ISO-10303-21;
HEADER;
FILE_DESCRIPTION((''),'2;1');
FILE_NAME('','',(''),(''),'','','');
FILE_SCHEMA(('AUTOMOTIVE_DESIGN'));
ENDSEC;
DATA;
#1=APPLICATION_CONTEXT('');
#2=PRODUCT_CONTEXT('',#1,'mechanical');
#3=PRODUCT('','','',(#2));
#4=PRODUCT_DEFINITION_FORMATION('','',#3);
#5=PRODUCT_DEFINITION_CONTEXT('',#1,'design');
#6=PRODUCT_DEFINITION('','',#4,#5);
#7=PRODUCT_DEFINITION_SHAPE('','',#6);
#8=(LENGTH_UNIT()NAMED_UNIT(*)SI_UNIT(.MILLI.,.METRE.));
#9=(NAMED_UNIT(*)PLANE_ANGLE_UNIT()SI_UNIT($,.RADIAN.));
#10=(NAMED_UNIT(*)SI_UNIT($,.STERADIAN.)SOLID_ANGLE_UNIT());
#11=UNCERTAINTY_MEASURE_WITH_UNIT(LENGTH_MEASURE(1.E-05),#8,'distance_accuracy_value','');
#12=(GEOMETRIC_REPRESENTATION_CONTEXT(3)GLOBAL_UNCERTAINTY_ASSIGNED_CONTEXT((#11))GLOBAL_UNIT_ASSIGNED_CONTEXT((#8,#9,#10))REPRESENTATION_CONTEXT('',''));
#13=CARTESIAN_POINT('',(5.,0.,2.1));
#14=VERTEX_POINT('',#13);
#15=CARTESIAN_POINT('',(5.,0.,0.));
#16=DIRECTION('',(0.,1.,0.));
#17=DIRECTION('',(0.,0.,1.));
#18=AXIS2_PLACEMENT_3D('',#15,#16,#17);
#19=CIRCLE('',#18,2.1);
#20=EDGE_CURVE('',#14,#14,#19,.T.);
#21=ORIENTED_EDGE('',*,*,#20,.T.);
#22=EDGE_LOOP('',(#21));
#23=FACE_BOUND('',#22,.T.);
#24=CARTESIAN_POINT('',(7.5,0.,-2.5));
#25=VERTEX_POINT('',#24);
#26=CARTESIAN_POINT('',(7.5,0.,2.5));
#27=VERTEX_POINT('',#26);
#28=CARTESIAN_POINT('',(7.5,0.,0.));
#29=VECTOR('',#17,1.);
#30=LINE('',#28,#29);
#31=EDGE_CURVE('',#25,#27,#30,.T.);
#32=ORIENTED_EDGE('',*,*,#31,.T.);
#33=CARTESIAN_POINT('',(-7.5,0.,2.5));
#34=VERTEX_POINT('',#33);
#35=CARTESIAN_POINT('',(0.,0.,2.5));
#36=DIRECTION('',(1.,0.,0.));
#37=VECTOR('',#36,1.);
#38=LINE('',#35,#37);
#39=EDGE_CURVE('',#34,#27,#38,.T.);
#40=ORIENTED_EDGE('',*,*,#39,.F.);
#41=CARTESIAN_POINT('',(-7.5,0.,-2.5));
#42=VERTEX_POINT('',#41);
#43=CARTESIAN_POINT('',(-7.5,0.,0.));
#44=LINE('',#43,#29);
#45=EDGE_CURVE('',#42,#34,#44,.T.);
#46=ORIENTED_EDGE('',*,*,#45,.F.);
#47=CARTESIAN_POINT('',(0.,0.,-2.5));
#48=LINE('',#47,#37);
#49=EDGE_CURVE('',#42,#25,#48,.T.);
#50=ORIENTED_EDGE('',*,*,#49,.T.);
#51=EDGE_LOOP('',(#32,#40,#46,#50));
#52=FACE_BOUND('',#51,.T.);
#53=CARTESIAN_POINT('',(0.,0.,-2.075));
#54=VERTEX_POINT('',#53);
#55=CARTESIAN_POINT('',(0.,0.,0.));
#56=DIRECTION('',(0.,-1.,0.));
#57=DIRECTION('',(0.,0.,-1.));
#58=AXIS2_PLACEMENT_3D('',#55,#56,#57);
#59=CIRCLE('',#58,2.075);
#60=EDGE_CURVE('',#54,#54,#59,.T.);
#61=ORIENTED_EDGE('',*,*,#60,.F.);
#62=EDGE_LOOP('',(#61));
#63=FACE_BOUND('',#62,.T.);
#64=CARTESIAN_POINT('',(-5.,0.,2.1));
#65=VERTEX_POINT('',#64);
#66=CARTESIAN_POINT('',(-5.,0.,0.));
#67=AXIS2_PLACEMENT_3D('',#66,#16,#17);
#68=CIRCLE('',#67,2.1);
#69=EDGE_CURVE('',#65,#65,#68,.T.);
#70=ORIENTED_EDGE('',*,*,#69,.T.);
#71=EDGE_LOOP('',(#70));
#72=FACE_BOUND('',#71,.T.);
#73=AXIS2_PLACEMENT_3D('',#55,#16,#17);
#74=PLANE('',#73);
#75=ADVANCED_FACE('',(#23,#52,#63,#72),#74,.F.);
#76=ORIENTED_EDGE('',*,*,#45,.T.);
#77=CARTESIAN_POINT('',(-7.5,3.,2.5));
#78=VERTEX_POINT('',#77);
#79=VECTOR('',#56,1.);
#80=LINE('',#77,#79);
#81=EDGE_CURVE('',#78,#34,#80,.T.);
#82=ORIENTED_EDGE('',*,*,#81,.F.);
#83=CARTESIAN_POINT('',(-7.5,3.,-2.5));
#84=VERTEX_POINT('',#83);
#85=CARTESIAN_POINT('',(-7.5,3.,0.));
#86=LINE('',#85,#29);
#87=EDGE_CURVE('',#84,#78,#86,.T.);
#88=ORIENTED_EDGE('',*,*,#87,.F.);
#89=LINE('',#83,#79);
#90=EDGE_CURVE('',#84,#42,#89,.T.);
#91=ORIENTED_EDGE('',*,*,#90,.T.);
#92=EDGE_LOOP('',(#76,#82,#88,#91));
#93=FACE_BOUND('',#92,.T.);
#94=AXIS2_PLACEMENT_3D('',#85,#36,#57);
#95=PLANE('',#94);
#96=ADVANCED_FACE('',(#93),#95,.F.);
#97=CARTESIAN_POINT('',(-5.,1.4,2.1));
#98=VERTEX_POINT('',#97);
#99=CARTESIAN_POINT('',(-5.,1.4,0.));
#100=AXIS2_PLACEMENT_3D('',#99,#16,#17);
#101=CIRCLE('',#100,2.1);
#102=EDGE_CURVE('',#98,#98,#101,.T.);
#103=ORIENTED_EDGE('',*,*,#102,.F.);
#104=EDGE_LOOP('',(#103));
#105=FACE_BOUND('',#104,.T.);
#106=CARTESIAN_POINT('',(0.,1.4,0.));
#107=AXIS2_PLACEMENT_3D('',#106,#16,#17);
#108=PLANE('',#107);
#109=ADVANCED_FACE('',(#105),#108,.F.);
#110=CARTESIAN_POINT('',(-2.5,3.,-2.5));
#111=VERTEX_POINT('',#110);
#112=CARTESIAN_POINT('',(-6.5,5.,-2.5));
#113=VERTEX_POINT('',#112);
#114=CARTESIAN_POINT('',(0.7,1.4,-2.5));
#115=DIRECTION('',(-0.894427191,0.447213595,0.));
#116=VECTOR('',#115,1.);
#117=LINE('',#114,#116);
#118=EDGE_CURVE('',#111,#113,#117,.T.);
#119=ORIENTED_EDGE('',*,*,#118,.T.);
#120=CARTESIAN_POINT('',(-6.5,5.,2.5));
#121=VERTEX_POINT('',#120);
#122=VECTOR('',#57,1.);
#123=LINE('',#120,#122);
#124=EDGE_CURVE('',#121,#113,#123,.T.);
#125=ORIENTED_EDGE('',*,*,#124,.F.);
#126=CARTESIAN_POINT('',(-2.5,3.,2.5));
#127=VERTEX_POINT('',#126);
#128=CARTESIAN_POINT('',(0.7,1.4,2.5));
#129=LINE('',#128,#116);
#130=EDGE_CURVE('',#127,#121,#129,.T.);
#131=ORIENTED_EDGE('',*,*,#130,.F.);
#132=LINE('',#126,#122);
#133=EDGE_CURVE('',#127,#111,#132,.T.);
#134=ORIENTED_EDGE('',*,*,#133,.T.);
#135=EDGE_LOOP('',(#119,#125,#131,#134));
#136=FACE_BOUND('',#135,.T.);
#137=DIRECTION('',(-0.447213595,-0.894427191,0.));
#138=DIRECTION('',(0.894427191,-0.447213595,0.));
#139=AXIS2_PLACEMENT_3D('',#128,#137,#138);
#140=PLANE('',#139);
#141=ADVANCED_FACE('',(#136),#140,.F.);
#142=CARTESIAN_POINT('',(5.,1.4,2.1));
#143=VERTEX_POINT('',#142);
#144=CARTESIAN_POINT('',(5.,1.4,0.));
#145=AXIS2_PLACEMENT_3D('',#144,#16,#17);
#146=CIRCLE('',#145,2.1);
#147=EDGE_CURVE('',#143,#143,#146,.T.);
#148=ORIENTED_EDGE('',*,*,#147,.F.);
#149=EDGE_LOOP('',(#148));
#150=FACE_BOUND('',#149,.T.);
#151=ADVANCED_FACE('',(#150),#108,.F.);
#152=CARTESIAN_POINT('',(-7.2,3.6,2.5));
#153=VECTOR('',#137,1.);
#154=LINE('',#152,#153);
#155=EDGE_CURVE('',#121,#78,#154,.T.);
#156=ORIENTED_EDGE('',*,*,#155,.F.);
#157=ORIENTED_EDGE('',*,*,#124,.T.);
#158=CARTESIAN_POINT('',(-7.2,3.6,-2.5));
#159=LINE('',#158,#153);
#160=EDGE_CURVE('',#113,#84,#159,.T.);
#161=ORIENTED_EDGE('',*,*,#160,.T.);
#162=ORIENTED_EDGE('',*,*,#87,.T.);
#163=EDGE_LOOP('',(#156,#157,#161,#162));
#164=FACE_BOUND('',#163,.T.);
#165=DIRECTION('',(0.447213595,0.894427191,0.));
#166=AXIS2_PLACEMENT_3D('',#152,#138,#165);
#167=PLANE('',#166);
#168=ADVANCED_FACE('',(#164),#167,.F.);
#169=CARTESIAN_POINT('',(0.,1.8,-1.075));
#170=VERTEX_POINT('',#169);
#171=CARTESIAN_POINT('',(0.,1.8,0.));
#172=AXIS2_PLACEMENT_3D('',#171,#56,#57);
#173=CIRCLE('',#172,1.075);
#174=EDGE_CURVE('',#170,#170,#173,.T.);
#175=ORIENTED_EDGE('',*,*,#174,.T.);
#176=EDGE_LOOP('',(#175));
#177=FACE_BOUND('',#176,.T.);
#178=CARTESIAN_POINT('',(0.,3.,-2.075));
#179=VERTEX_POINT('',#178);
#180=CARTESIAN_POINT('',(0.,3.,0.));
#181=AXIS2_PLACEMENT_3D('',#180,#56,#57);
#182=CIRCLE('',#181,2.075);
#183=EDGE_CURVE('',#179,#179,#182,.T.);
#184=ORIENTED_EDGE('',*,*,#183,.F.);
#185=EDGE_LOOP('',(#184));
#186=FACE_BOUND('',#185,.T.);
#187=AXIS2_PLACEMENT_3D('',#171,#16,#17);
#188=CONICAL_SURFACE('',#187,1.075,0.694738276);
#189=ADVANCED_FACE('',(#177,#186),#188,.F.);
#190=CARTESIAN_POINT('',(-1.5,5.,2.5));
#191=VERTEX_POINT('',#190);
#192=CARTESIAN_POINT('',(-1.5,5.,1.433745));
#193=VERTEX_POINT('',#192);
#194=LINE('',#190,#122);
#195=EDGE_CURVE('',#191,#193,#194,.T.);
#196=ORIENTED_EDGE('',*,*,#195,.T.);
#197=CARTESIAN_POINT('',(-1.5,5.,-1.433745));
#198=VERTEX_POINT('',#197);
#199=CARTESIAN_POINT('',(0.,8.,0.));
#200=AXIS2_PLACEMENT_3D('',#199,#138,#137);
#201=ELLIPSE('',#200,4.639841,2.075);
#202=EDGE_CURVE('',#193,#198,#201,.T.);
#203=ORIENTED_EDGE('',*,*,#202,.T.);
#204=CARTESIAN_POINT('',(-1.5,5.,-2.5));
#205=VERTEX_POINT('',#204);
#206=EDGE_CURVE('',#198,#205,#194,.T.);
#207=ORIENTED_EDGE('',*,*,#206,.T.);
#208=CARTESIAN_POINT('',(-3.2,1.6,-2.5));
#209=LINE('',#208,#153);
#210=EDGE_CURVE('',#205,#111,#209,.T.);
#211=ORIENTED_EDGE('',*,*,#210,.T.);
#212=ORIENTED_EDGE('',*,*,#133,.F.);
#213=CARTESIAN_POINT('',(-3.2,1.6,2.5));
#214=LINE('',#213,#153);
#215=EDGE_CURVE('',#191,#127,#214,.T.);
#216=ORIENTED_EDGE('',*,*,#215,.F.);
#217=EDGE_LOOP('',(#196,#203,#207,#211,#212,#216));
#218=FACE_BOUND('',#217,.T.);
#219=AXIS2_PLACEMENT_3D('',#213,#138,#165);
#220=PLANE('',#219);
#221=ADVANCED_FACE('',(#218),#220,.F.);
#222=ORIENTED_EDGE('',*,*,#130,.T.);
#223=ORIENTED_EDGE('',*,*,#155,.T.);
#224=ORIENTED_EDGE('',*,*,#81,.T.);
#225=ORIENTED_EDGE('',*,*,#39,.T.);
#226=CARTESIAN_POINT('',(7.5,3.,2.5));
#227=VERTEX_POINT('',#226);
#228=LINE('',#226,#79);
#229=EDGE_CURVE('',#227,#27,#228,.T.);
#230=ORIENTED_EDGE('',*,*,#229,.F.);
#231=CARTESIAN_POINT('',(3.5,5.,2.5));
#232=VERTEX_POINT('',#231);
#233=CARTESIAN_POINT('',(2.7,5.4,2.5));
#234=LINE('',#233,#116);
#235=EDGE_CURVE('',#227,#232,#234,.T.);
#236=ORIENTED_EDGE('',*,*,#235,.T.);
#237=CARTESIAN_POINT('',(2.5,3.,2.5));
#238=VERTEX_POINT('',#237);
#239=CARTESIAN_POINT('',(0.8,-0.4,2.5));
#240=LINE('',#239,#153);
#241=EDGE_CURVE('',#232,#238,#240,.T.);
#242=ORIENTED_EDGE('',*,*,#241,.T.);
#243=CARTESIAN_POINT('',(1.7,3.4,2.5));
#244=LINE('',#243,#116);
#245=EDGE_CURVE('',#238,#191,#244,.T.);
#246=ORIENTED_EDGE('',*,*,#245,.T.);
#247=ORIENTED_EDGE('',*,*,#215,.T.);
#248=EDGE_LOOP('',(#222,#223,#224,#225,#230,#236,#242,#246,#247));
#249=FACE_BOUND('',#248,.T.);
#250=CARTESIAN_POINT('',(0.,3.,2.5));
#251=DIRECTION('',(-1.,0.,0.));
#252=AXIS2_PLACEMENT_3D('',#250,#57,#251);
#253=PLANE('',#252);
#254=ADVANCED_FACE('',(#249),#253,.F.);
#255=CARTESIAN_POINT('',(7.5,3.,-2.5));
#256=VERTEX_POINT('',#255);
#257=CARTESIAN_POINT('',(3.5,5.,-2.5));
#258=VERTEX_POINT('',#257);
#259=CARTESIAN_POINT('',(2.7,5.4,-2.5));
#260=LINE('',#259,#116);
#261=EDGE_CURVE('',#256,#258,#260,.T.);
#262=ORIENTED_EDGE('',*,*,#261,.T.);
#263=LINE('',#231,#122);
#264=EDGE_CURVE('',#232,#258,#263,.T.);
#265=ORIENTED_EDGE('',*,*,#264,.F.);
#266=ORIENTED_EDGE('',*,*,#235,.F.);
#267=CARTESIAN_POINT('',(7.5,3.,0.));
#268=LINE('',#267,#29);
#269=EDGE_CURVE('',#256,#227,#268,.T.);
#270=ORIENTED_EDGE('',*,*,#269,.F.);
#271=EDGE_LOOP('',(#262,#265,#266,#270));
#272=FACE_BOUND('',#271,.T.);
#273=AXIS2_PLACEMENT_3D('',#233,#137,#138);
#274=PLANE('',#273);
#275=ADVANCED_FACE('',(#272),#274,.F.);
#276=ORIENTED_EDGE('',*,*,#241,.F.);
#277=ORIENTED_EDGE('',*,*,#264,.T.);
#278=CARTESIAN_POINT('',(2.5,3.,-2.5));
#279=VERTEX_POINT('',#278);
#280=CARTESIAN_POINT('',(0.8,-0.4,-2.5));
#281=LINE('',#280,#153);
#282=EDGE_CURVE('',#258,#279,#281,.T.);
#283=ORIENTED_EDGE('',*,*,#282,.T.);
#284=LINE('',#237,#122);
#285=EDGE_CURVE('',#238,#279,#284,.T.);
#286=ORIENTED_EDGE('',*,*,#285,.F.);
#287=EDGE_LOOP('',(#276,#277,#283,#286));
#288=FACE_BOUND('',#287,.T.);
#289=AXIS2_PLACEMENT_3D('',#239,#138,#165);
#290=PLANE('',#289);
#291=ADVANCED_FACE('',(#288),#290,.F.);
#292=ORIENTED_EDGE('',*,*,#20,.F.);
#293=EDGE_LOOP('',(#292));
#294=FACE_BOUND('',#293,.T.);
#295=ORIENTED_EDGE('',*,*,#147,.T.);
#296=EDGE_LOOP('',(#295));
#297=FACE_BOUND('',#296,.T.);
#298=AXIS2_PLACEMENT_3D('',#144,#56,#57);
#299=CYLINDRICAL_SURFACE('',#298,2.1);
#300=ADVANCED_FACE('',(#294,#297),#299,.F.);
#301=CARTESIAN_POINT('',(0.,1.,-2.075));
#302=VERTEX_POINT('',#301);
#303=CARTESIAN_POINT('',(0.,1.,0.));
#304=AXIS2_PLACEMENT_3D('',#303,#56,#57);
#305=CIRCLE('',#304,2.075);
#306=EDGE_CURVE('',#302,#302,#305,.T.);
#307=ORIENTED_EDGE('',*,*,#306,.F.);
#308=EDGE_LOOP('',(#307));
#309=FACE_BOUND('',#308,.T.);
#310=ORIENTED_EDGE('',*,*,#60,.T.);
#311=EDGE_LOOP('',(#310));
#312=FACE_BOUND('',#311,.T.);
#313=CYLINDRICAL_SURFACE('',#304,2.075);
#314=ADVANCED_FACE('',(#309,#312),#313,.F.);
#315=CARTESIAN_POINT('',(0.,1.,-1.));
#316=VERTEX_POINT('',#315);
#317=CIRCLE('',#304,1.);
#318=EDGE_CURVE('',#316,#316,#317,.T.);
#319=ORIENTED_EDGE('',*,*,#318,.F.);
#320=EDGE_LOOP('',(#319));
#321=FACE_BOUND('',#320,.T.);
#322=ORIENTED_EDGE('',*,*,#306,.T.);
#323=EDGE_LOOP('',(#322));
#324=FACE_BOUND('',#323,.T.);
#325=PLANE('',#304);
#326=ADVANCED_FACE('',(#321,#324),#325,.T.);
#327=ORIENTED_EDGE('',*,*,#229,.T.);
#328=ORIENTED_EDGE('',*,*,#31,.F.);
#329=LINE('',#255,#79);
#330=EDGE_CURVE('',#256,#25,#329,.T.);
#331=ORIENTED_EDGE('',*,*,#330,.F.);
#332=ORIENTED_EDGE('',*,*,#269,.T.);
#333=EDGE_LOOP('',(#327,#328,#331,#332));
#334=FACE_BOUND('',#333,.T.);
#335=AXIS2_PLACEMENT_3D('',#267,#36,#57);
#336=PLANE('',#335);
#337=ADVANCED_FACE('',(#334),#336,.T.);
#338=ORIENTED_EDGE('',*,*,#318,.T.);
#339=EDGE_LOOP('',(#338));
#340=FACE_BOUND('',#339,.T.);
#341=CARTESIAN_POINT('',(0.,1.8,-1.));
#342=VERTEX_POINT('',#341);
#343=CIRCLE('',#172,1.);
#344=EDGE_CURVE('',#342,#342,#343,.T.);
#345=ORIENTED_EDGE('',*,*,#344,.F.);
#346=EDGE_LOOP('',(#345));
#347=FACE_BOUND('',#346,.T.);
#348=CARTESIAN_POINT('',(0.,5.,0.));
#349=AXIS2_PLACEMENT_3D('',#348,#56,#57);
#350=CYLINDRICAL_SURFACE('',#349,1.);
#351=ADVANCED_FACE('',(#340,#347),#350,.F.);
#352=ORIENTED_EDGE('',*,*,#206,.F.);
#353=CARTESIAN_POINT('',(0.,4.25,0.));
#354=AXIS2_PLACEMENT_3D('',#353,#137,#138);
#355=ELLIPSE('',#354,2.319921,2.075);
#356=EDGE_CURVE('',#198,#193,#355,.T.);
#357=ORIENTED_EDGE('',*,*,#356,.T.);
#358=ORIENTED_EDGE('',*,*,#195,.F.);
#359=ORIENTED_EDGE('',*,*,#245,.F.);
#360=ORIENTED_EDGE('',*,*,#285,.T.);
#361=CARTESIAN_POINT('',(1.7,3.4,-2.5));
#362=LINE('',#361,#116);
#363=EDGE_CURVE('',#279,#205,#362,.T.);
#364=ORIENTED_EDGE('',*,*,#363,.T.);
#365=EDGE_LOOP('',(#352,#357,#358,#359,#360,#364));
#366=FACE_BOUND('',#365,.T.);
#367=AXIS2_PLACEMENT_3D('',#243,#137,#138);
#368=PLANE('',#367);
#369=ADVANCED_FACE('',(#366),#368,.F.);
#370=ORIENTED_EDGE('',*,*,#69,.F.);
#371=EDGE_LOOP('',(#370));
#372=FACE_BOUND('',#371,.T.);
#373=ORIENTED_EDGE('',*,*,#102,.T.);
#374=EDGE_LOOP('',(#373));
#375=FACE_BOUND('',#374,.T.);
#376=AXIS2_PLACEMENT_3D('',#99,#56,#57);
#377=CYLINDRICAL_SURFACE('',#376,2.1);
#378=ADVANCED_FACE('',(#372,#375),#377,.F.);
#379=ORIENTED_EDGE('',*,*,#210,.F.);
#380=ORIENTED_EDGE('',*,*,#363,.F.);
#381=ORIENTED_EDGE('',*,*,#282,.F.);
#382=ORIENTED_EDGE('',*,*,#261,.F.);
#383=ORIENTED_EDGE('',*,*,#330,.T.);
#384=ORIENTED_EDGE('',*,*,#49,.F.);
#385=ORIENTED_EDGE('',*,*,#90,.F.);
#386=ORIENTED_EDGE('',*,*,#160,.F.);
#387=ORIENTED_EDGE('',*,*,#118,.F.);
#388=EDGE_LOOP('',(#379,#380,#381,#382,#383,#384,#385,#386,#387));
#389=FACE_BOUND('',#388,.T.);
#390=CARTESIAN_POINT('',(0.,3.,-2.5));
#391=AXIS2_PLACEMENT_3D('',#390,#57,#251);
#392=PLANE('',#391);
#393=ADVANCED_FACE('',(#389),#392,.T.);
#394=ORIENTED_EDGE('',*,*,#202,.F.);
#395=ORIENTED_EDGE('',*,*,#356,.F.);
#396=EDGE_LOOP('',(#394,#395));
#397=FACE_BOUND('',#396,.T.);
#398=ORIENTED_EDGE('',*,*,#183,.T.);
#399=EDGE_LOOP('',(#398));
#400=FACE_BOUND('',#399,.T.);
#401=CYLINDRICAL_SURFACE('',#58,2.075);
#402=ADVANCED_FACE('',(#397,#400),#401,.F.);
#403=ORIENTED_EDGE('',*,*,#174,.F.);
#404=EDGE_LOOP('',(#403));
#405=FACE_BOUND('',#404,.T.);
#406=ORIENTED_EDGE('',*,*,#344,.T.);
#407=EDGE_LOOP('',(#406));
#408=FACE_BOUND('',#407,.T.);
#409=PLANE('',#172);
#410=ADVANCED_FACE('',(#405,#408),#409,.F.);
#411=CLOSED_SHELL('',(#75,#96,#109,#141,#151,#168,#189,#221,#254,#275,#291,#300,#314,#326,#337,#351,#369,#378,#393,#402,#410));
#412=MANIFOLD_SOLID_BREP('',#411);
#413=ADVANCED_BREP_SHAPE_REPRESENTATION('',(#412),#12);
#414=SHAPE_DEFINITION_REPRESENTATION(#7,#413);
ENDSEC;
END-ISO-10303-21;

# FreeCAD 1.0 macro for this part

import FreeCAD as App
import Part
import Sketcher

V = App.Vector
Q = App.Units.Quantity

doc = App.newDocument("Part")
body = doc.addObject("PartDesign::Body", "Body")

# Sketch on XZ plane
sketch1 = body.newObject("Sketcher::SketchObject", "Sketch")
sketch1.AttachmentSupport = (doc.getObject("XZ_Plane"), [""])
sketch1.MapMode = "FlatFace"
sketch1.addGeometry([
    Part.LineSegment(V(-8, -2, 0), V(-8, 2, 0)),
    Part.LineSegment(V(-8, 2, 0), V(8, 2, 0)),
    Part.LineSegment(V(8, 2, 0), V(8, -2, 0)),
    Part.LineSegment(V(8, -2, 0), V(-8, -2, 0)),
], False)
sketch1.addConstraint([
    Sketcher.Constraint("Coincident", 0, 2, 1, 1),
    Sketcher.Constraint("Coincident", 1, 2, 2, 1),
    Sketcher.Constraint("Coincident", 2, 2, 3, 1),
    Sketcher.Constraint("Coincident", 3, 2, 0, 1),
    Sketcher.Constraint("Vertical", 0),
    Sketcher.Constraint("Horizontal", 1),
    Sketcher.Constraint("Vertical", 2),
    Sketcher.Constraint("Horizontal", 3),
    Sketcher.Constraint("Symmetric", 0, 2, 2, 2, -1, 1),
    Sketcher.Constraint("DistanceX", 1, 1, 1, 2, Q("15 mm")),
    Sketcher.Constraint("DistanceY", 0, 1, 0, 2, Q("5 mm")),
])
pad1 = body.newObject("PartDesign::Pad", "Pad")
pad1.Profile = sketch1
pad1.Length = 3
pad1.Reversed = True

# Sketch on XY plane
sketch2 = body.newObject("Sketcher::SketchObject", "Sketch001")
sketch2.AttachmentSupport = (doc.getObject("XY_Plane"), [""])
sketch2.MapMode = "FlatFace"
sketch2.addGeometry([
    Part.LineSegment(V(-2.5, 3, 0), V(-6.5, 5, 0)),  # 0
    Part.LineSegment(V(-6.5, 5, 0), V(-7.5, 3, 0)),  # 1
    Part.LineSegment(V(-7.5, 3, 0), V(-2.5, 3, 0)),  # 2
    Part.LineSegment(V(2.5, 3, 0), V(-1.5, 5, 0)),  # 3
    Part.LineSegment(V(-1.5, 5, 0), V(-2.5, 3, 0)),  # 4
    Part.LineSegment(V(-2.5, 3, 0), V(2.5, 3, 0)),  # 5
    Part.LineSegment(V(3.5, 5, 0), V(2.5, 3, 0)),  # 6
    Part.LineSegment(V(2.5, 3, 0), V(7.5, 3, 0)),  # 7
    Part.LineSegment(V(7.5, 3, 0), V(3.5, 5, 0)),  # 8
], False)
sketch2.addConstraint([
    Sketcher.Constraint("Coincident", 0, 2, 1, 1),
    Sketcher.Constraint("Coincident", 1, 2, 2, 1),
    Sketcher.Constraint("Coincident", 2, 2, 0, 1),
    Sketcher.Constraint("Coincident", 3, 2, 4, 1),
    Sketcher.Constraint("Coincident", 4, 2, 5, 1),
    Sketcher.Constraint("Coincident", 5, 2, 3, 1),
    Sketcher.Constraint("Coincident", 6, 2, 7, 1),
    Sketcher.Constraint("Coincident", 7, 2, 8, 1),
    Sketcher.Constraint("Coincident", 8, 2, 6, 1),
    Sketcher.Constraint("Horizontal", 2),
    Sketcher.Constraint("Horizontal", 5),
    Sketcher.Constraint("Horizontal", 7),
    Sketcher.Constraint("Coincident", 4, 2, 2, 2),
    Sketcher.Constraint("Coincident", 6, 2, 5, 2),
    Sketcher.Constraint("Perpendicular", 0, 1),
    Sketcher.Constraint("Perpendicular", 1, 3),
    Sketcher.Constraint("Perpendicular", 3, 4),
    Sketcher.Constraint("Parallel", 4, 6),
    Sketcher.Constraint("Perpendicular", 6, 8),
    Sketcher.Constraint("Horizontal", 0, 2, 3, 2),
    Sketcher.Constraint("Horizontal", 3, 2, 8, 2),
    Sketcher.Constraint("DistanceX", 2, 1, 2, 2, Q("5 mm")),
    Sketcher.Constraint("DistanceY", -1, 1, 0, 2, Q("5 mm")),
    Sketcher.Constraint("DistanceY", -1, 1, 1, 2, Q("3 mm")),
    Sketcher.Constraint("DistanceX", 0, 2, -1, 1, Q("6.5 mm")),
])
pad2 = body.newObject("PartDesign::Pad", "Pad001")
pad2.Profile = sketch2
pad2.Length = 5
pad2.Midplane = True

# Sketch on XZ plane
sketch3 = body.newObject("Sketcher::SketchObject", "Sketch002")
sketch3.AttachmentSupport = (doc.getObject("XZ_Plane"), [""])
sketch3.MapMode = "FlatFace"
sketch3.addGeometry(Part.Circle(V(0, 0, 0), V(0, 0, 1), 1), False)
sketch3.addConstraint([
    Sketcher.Constraint("Coincident", 0, 3, -1, 1),
    Sketcher.Constraint("Diameter", 0, Q("2 mm")),
])
pocket1 = body.newObject("PartDesign::Pocket", "Pocket")
pocket1.Profile = sketch3
pocket1.Type = "ThroughAll"

# Sketch on XZ plane
sketch4 = body.newObject("Sketcher::SketchObject", "Sketch003")
sketch4.AttachmentSupport = (doc.getObject("XZ_Plane"), [""])
sketch4.MapMode = "FlatFace"
sketch4.addGeometry([
    Part.Circle(V(-5, 0, 0), V(0, 0, 1), 2.1),
    Part.Circle(V(5, 0, 0), V(0, 0, 1), 2.1),
], False)
sketch4.addConstraint([
    Sketcher.Constraint("Equal", 0, 1),
    Sketcher.Constraint("Symmetric", 0, 3, 1, 3, -1, 1),
    Sketcher.Constraint("PointOnObject", 0, 3, -1),
    Sketcher.Constraint("Diameter", 0, Q("4.2 mm")),
    Sketcher.Constraint("DistanceX", 0, 3, -1, 1, Q("5 mm")),
])
pocket2 = body.newObject("PartDesign::Pocket", "Pocket001")
pocket2.Profile = sketch4
pocket2.Length = 1.4

# Sketch on XY plane
sketch5 = body.newObject("Sketcher::SketchObject", "Sketch004")
sketch5.AttachmentSupport = (doc.getObject("XY_Plane"), [""])
sketch5.MapMode = "FlatFace"
sketch5.addGeometry([
    Part.LineSegment(V(0, 1.8, 0), V(1.1, 1.8, 0)),  # 0
    Part.LineSegment(V(1.1, 1.8, 0), V(2.1, 3, 0)),  # 1
    Part.LineSegment(V(2.1, 3, 0), V(2.1, 5, 0)),  # 2
    Part.LineSegment(V(2.1, 5, 0), V(0, 5, 0)),  # 3
    Part.LineSegment(V(0, 5, 0), V(0, 1.8, 0)),  # 4
], False)
sketch5.addConstraint([
    Sketcher.Constraint("Coincident", 0, 2, 1, 1),
    Sketcher.Constraint("Coincident", 1, 2, 2, 1),
    Sketcher.Constraint("Coincident", 2, 2, 3, 1),
    Sketcher.Constraint("Coincident", 3, 2, 4, 1),
    Sketcher.Constraint("Coincident", 4, 2, 0, 1),
    Sketcher.Constraint("Horizontal", 0),
    Sketcher.Constraint("Vertical", 2),
    Sketcher.Constraint("Horizontal", 3),
    Sketcher.Constraint("Vertical", 4),
    Sketcher.Constraint("PointOnObject", 3, 2, -2),
    Sketcher.Constraint("DistanceY", 2, 1, 2, 2, Q("2 mm")),
    Sketcher.Constraint("DistanceY", 4, 2, 4, 1, Q("3.2 mm")),
    Sketcher.Constraint("DistanceY", -1, 1, 1, 2, Q("3 mm")),
    Sketcher.Constraint("DistanceX", 0, 2, 1, 2, Q("1 mm")),
    Sketcher.Constraint("DistanceX", 0, 1, 0, 2, Q("1.075 mm")),
])
groove = body.newObject("PartDesign::Groove", "Groove")
groove.Profile = sketch5
groove.ReferenceAxis = (sketch5, ["V_Axis"])
groove.Angle = 360

# Sketch on XZ plane
sketch6 = body.newObject("Sketcher::SketchObject", "Sketch005")
sketch6.AttachmentSupport = (doc.getObject("XZ_Plane"), [""])
sketch6.MapMode = "FlatFace"
sketch6.addGeometry(Part.Circle(V(0, 0, 0), V(0, 0, 1), 2.1), False)
sketch6.addConstraint([
    Sketcher.Constraint("Coincident", 0, 3, -1, 1),
    Sketcher.Constraint("Diameter", 0, Q("4.15 mm")),
])
pocket3 = body.newObject("PartDesign::Pocket", "Pocket002")
pocket3.Profile = sketch6
pocket3.Length = 1

doc.recompute()
